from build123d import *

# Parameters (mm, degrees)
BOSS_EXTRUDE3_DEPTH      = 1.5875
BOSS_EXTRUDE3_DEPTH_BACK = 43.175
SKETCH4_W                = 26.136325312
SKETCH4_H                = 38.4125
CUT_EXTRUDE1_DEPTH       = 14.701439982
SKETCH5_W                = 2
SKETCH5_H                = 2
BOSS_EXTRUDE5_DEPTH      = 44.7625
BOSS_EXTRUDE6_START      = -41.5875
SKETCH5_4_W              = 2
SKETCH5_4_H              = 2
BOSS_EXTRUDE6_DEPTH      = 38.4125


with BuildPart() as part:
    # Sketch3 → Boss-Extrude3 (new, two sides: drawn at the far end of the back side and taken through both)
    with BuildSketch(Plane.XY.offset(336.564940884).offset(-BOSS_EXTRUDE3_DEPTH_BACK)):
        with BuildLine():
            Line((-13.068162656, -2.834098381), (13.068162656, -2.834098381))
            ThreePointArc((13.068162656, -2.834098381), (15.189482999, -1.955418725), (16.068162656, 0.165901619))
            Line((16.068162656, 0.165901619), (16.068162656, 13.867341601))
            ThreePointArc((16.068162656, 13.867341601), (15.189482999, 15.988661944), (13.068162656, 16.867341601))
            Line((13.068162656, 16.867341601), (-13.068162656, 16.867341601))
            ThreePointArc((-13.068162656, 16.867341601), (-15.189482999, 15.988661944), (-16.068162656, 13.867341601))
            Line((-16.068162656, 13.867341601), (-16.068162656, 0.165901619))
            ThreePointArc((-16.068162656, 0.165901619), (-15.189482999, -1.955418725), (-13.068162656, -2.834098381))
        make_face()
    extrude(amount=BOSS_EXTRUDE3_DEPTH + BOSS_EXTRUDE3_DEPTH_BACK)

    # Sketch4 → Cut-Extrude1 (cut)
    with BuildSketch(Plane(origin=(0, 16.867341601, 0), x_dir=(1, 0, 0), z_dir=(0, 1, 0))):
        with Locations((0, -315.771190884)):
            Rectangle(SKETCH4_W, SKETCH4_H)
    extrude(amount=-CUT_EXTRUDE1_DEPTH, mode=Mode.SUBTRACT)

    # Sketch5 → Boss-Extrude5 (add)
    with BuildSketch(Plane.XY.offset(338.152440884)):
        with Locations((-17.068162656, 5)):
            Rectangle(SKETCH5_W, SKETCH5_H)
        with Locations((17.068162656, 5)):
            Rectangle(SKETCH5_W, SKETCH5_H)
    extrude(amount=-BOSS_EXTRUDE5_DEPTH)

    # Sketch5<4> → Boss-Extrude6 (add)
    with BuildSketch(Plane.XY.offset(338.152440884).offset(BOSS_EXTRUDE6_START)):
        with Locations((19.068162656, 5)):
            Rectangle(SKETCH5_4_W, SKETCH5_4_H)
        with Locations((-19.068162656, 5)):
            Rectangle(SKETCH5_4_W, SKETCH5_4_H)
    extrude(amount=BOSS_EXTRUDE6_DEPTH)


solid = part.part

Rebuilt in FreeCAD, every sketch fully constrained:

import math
import FreeCAD as App
import Part
import Sketcher
from FreeCAD import Vector

doc = App.newDocument("Part")
body = doc.addObject("PartDesign::Body", "Body")

# Sketch on XY plane
sketch1 = body.newObject("Sketcher::SketchObject", "Sketch")
sketch1.AttachmentSupport = (doc.getObject("XY_Plane"), [""])
sketch1.MapMode = "FlatFace"
sketch1.AttachmentOffset = App.Placement(Vector(0, 0, 336.564941), App.Rotation())
sketch1.addGeometry([
    Part.LineSegment(Vector(-13.068163, -2.834098, 0), Vector(13.068163, -2.834098, 0)),  # 0
    Part.ArcOfCircle(Part.Circle(Vector(13.068163, 0.165902, 0), Vector(0, 0, 1), 3), math.radians(-90), math.radians(0)),  # 1
    Part.LineSegment(Vector(16.068163, 0.165902, 0), Vector(16.068163, 13.867342, 0)),  # 2
    Part.ArcOfCircle(Part.Circle(Vector(13.068163, 13.867342, 0), Vector(0, 0, 1), 3), math.radians(0), math.radians(90)),  # 3
    Part.LineSegment(Vector(13.068163, 16.867342, 0), Vector(-13.068163, 16.867342, 0)),  # 4
    Part.ArcOfCircle(Part.Circle(Vector(-13.068163, 13.867342, 0), Vector(0, 0, 1), 3), math.radians(90), math.radians(180)),  # 5
    Part.LineSegment(Vector(-16.068163, 13.867342, 0), Vector(-16.068163, 0.165902, 0)),  # 6
    Part.ArcOfCircle(Part.Circle(Vector(-13.068163, 0.165902, 0), Vector(0, 0, 1), 3), math.radians(180), math.radians(270)),  # 7
], False)
sketch1.addConstraint([
    Sketcher.Constraint("Tangent", 0, 2, 1, 1),
    Sketcher.Constraint("Tangent", 1, 2, 2, 1),
    Sketcher.Constraint("Tangent", 2, 2, 3, 1),
    Sketcher.Constraint("Tangent", 3, 2, 4, 1),
    Sketcher.Constraint("Tangent", 4, 2, 5, 1),
    Sketcher.Constraint("Tangent", 5, 2, 6, 1),
    Sketcher.Constraint("Tangent", 6, 2, 7, 1),
    Sketcher.Constraint("Tangent", 7, 2, 0, 1),
    Sketcher.Constraint("Horizontal", 0),
    Sketcher.Constraint("Vertical", 2),
    Sketcher.Constraint("Horizontal", 4),
    Sketcher.Constraint("Vertical", 6),
    Sketcher.Constraint("Equal", 1, 3),
    Sketcher.Constraint("Equal", 3, 5),
    Sketcher.Constraint("Equal", 5, 7),
    Sketcher.Constraint("Radius", 1, 3.0),
    Sketcher.Constraint("DistanceY", 2, 1, 2, 2, 13.70144),
    Sketcher.Constraint("DistanceY", -1, 1, 1, 3, 0.165902),
    Sketcher.Constraint("DistanceX", 0, 1, 0, 2, 26.136325),
    Sketcher.Constraint("DistanceX", -1, 1, 1, 3, 13.068163),
])
pad1 = body.newObject("PartDesign::Pad", "Pad")
pad1.Profile = sketch1
pad1.Type = "TwoLengths"
pad1.Length = 1.5875
pad1.Length2 = 43.175

# Sketch on XZ plane
sketch2 = body.newObject("Sketcher::SketchObject", "Sketch001")
sketch2.AttachmentSupport = (doc.getObject("XZ_Plane"), [""])
sketch2.MapMode = "FlatFace"
sketch2.AttachmentOffset = App.Placement(Vector(0, 0, -16.867342), App.Rotation())
sketch2.addGeometry([
    Part.LineSegment(Vector(-13.068163, 296.564941, 0), Vector(-13.068163, 334.977441, 0)),
    Part.LineSegment(Vector(-13.068163, 334.977441, 0), Vector(13.068163, 334.977441, 0)),
    Part.LineSegment(Vector(13.068163, 334.977441, 0), Vector(13.068163, 296.564941, 0)),
    Part.LineSegment(Vector(13.068163, 296.564941, 0), Vector(-13.068163, 296.564941, 0)),
], False)
sketch2.addConstraint([
    Sketcher.Constraint("Coincident", 0, 2, 1, 1),
    Sketcher.Constraint("Coincident", 1, 2, 2, 1),
    Sketcher.Constraint("Coincident", 2, 2, 3, 1),
    Sketcher.Constraint("Coincident", 3, 2, 0, 1),
    Sketcher.Constraint("Vertical", 0),
    Sketcher.Constraint("Horizontal", 1),
    Sketcher.Constraint("Vertical", 2),
    Sketcher.Constraint("Horizontal", 3),
    Sketcher.Constraint("DistanceY", 0, 1, 0, 2, 38.4125),
    Sketcher.Constraint("DistanceX", 1, 1, 1, 2, 26.136325),
    Sketcher.Constraint("DistanceY", -1, 1, 0, 2, 334.977441),
    Sketcher.Constraint("DistanceX", 0, 2, -1, 1, 13.068163),
])
pocket1 = body.newObject("PartDesign::Pocket", "Pocket")
pocket1.Profile = sketch2
pocket1.Length = 14.70144
pocket1.Reversed = True

# Sketch on XY plane
sketch3 = body.newObject("Sketcher::SketchObject", "Sketch002")
sketch3.AttachmentSupport = (doc.getObject("XY_Plane"), [""])
sketch3.MapMode = "FlatFace"
sketch3.AttachmentOffset = App.Placement(Vector(0, 0, 338.152441), App.Rotation())
sketch3.addGeometry([
    Part.LineSegment(Vector(-18.068163, 6, 0), Vector(-18.068163, 4, 0)),  # 0
    Part.LineSegment(Vector(-18.068163, 4, 0), Vector(-16.068163, 4, 0)),  # 1
    Part.LineSegment(Vector(-16.068163, 4, 0), Vector(-16.068163, 6, 0)),  # 2
    Part.LineSegment(Vector(-16.068163, 6, 0), Vector(-18.068163, 6, 0)),  # 3
    Part.LineSegment(Vector(16.068163, 6, 0), Vector(16.068163, 4, 0)),  # 4
    Part.LineSegment(Vector(16.068163, 4, 0), Vector(18.068163, 4, 0)),  # 5
    Part.LineSegment(Vector(18.068163, 4, 0), Vector(18.068163, 6, 0)),  # 6
    Part.LineSegment(Vector(18.068163, 6, 0), Vector(16.068163, 6, 0)),  # 7
], False)
sketch3.addConstraint([
    Sketcher.Constraint("Coincident", 0, 2, 1, 1),
    Sketcher.Constraint("Coincident", 1, 2, 2, 1),
    Sketcher.Constraint("Coincident", 2, 2, 3, 1),
    Sketcher.Constraint("Coincident", 3, 2, 0, 1),
    Sketcher.Constraint("Coincident", 4, 2, 5, 1),
    Sketcher.Constraint("Coincident", 5, 2, 6, 1),
    Sketcher.Constraint("Coincident", 6, 2, 7, 1),
    Sketcher.Constraint("Coincident", 7, 2, 4, 1),
    Sketcher.Constraint("Vertical", 0),
    Sketcher.Constraint("Horizontal", 1),
    Sketcher.Constraint("Vertical", 2),
    Sketcher.Constraint("Horizontal", 3),
    Sketcher.Constraint("Vertical", 4),
    Sketcher.Constraint("Horizontal", 5),
    Sketcher.Constraint("Vertical", 6),
    Sketcher.Constraint("Horizontal", 7),
    Sketcher.Constraint("Symmetric", 1, 2, 4, 2, -2),
    Sketcher.Constraint("Symmetric", 3, 2, 6, 2, -2),
    Sketcher.Constraint("Equal", 7, 0),
    Sketcher.Constraint("DistanceX", 1, 1, 1, 2, 2.0),
    Sketcher.Constraint("DistanceY", -1, 1, 0, 2, 4.0),
    Sketcher.Constraint("DistanceX", 0, 2, -1, 1, 18.068163),
])
pad2 = body.newObject("PartDesign::Pad", "Pad001")
pad2.Profile = sketch3
pad2.Length = 44.7625
pad2.Reversed = True

# Sketch on XY plane
sketch4 = body.newObject("Sketcher::SketchObject", "Sketch003")
sketch4.AttachmentSupport = (doc.getObject("XY_Plane"), [""])
sketch4.MapMode = "FlatFace"
sketch4.AttachmentOffset = App.Placement(Vector(0, 0, 296.564941), App.Rotation())
sketch4.addGeometry([
    Part.LineSegment(Vector(18.068163, 6, 0), Vector(18.068163, 4, 0)),  # 0
    Part.LineSegment(Vector(18.068163, 4, 0), Vector(20.068163, 4, 0)),  # 1
    Part.LineSegment(Vector(20.068163, 4, 0), Vector(20.068163, 6, 0)),  # 2
    Part.LineSegment(Vector(20.068163, 6, 0), Vector(18.068163, 6, 0)),  # 3
    Part.LineSegment(Vector(-20.068163, 6, 0), Vector(-20.068163, 4, 0)),  # 4
    Part.LineSegment(Vector(-20.068163, 4, 0), Vector(-18.068163, 4, 0)),  # 5
    Part.LineSegment(Vector(-18.068163, 4, 0), Vector(-18.068163, 6, 0)),  # 6
    Part.LineSegment(Vector(-18.068163, 6, 0), Vector(-20.068163, 6, 0)),  # 7
], False)
sketch4.addConstraint([
    Sketcher.Constraint("Coincident", 0, 2, 1, 1),
    Sketcher.Constraint("Coincident", 1, 2, 2, 1),
    Sketcher.Constraint("Coincident", 2, 2, 3, 1),
    Sketcher.Constraint("Coincident", 3, 2, 0, 1),
    Sketcher.Constraint("Coincident", 4, 2, 5, 1),
    Sketcher.Constraint("Coincident", 5, 2, 6, 1),
    Sketcher.Constraint("Coincident", 6, 2, 7, 1),
    Sketcher.Constraint("Coincident", 7, 2, 4, 1),
    Sketcher.Constraint("Vertical", 0),
    Sketcher.Constraint("Horizontal", 1),
    Sketcher.Constraint("Vertical", 2),
    Sketcher.Constraint("Horizontal", 3),
    Sketcher.Constraint("Vertical", 4),
    Sketcher.Constraint("Horizontal", 5),
    Sketcher.Constraint("Vertical", 6),
    Sketcher.Constraint("Horizontal", 7),
    Sketcher.Constraint("Symmetric", 1, 2, 4, 2, -2),
    Sketcher.Constraint("Symmetric", 3, 2, 6, 2, -2),
    Sketcher.Constraint("Equal", 7, 0),
    Sketcher.Constraint("DistanceX", 1, 1, 1, 2, 2.0),
    Sketcher.Constraint("DistanceY", -1, 1, 0, 2, 4.0),
    Sketcher.Constraint("DistanceX", -1, 1, 0, 2, 18.068163),
])
pad3 = body.newObject("PartDesign::Pad", "Pad002")
pad3.Profile = sketch4
pad3.Length = 38.4125

doc.recompute()
